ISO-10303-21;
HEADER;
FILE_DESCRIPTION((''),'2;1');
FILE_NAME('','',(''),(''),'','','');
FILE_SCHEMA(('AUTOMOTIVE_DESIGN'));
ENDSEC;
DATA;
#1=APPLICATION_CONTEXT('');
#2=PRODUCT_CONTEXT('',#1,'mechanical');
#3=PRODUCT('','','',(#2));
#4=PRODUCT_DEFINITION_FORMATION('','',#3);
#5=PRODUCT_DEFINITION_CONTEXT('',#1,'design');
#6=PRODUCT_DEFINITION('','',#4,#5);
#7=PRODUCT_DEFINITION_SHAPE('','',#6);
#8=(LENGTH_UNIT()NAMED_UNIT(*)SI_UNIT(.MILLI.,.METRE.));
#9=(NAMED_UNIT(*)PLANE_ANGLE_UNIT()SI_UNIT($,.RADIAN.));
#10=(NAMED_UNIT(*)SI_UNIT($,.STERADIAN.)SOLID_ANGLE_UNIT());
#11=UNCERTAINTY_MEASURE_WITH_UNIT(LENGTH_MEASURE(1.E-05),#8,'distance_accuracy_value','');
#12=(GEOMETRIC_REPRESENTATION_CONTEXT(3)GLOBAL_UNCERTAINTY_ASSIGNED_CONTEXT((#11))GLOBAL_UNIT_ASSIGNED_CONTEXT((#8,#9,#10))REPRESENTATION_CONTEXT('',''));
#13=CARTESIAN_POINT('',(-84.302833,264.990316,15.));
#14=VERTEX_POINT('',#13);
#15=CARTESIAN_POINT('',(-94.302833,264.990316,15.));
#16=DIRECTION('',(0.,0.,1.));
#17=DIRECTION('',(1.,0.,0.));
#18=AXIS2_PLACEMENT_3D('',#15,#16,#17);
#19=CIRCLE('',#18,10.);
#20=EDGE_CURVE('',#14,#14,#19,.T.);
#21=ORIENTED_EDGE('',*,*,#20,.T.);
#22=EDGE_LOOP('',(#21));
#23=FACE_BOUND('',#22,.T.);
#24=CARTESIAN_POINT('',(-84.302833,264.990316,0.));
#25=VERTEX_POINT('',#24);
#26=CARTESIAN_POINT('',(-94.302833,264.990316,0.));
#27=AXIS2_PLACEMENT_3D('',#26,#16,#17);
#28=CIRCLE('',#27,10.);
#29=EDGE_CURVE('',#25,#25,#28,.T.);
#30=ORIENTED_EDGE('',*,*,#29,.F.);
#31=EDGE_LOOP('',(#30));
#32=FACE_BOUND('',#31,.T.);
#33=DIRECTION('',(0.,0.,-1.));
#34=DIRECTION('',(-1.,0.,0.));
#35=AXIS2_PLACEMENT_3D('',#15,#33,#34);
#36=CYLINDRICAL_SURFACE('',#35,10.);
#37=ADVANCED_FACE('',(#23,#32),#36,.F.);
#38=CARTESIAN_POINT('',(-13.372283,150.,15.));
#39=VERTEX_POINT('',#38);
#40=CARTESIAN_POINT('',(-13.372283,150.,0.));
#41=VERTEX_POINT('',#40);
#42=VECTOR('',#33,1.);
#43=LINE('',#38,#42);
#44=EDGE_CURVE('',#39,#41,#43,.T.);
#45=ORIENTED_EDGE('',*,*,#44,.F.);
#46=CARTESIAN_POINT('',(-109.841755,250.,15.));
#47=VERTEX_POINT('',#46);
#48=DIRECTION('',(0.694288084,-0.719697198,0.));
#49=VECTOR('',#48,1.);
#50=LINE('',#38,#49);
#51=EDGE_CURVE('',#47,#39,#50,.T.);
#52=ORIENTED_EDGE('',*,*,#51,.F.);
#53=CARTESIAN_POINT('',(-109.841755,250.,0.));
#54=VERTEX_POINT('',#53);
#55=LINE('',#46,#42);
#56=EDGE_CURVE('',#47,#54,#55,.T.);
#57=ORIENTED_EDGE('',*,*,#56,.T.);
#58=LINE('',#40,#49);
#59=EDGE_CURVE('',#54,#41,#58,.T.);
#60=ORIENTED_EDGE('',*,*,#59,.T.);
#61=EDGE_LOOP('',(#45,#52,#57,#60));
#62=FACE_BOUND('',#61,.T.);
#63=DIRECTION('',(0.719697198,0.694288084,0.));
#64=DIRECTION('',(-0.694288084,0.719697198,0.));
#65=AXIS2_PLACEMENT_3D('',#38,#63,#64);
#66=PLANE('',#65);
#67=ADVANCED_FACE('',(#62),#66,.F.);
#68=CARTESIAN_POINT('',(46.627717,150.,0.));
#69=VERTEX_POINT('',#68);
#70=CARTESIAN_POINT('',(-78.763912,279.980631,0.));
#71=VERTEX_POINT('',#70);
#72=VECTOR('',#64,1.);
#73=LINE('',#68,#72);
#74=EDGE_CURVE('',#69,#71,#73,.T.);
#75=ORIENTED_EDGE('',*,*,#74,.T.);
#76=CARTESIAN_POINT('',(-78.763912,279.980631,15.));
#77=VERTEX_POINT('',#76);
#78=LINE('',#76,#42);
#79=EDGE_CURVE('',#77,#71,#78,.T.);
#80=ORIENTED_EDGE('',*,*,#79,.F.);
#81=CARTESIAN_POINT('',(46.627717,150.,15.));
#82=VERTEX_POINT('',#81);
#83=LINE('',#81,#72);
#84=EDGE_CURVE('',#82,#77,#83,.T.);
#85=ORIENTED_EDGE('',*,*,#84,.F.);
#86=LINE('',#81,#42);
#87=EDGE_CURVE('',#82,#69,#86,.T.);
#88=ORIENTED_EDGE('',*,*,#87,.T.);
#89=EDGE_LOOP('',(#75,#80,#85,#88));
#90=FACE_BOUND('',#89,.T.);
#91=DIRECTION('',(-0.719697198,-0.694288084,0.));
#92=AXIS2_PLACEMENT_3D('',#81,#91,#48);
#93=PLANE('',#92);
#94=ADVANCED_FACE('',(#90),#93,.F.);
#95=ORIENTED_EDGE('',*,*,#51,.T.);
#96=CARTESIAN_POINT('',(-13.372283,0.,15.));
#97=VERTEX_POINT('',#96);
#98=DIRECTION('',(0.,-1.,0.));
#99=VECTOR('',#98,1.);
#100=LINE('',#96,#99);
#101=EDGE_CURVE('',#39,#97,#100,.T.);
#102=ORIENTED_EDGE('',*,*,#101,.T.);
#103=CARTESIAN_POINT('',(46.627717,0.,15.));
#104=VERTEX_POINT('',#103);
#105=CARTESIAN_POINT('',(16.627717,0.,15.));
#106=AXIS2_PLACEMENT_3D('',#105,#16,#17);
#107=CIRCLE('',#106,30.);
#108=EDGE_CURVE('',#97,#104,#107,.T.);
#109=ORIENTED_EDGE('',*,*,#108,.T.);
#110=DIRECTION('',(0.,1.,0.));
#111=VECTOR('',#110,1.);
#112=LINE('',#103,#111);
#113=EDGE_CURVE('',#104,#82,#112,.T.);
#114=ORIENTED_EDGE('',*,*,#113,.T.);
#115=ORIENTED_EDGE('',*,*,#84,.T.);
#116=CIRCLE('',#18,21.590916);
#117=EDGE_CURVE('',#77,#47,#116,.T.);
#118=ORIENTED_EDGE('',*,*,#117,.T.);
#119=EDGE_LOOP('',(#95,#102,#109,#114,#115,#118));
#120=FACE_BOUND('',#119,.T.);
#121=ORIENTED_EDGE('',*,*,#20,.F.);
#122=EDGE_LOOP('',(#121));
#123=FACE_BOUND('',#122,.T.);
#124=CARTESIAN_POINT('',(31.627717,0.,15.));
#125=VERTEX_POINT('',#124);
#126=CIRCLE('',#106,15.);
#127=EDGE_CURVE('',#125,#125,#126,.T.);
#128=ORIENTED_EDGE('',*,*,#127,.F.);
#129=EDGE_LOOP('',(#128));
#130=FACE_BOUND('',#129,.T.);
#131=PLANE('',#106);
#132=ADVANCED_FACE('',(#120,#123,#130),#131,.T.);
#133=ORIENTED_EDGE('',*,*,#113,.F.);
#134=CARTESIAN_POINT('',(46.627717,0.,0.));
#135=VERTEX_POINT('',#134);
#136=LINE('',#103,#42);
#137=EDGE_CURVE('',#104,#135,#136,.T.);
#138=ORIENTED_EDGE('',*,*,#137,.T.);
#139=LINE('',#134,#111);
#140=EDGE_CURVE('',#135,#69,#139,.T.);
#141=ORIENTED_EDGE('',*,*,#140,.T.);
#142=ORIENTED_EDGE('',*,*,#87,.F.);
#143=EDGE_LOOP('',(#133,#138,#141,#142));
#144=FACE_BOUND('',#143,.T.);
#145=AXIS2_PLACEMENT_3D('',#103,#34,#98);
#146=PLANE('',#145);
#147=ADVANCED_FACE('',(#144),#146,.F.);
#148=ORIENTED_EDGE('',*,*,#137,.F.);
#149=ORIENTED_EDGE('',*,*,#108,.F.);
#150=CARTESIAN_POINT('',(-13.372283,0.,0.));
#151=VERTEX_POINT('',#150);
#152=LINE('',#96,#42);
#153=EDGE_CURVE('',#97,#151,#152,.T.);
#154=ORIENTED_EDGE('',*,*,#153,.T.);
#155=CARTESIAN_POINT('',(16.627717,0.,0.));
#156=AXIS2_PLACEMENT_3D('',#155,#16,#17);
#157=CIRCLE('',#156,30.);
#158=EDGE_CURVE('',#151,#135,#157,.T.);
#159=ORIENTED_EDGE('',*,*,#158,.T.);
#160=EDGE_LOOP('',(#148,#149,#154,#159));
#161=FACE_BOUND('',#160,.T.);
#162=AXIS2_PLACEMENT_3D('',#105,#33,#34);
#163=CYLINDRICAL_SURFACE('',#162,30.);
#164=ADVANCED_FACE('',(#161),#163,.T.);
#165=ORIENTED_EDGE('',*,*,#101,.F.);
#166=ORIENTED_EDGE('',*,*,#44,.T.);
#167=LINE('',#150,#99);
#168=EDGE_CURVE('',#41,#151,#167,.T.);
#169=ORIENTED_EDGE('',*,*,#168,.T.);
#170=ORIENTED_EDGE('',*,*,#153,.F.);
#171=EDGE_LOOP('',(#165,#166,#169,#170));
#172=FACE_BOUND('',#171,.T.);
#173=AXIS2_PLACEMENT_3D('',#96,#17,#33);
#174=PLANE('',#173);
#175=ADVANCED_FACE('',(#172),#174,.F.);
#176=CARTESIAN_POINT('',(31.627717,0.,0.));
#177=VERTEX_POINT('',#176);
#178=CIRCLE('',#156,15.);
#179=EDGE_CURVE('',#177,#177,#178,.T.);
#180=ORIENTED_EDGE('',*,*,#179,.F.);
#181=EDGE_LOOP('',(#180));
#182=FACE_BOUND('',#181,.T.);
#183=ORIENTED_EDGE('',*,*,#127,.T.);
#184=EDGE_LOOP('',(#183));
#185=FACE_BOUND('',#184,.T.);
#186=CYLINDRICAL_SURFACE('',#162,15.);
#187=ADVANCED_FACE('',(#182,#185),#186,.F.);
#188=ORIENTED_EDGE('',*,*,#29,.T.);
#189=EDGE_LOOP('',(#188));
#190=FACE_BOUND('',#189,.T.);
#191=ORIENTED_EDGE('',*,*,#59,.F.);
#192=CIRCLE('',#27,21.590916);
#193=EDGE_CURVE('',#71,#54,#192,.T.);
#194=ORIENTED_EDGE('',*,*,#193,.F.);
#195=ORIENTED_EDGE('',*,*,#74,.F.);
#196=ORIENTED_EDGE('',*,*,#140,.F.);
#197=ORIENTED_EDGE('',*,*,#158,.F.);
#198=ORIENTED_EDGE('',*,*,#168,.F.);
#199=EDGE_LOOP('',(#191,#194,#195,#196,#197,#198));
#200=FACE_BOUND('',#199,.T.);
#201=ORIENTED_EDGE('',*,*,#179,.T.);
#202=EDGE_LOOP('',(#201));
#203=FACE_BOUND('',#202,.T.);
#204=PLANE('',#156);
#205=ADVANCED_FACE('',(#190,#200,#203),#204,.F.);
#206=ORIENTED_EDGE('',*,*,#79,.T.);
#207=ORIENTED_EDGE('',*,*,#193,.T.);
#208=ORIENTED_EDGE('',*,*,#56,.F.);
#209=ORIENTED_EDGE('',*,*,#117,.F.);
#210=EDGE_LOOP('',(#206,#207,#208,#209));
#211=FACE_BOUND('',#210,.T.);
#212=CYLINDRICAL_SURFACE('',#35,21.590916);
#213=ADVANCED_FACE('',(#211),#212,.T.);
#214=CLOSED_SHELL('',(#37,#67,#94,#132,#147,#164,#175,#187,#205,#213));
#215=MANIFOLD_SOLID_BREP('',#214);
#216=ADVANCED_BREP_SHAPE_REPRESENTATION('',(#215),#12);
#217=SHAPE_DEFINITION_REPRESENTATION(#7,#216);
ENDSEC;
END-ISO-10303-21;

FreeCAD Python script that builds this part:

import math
import FreeCAD as App
import Part
import Sketcher

doc = App.newDocument("Part")
body = doc.addObject("PartDesign::Body", "Body")

# Sketch on XY plane
sketch1 = body.newObject("Sketcher::SketchObject", "Sketch")
sketch1.AttachmentSupport = (doc.getObject("XY_Plane"), [""])
sketch1.MapMode = "FlatFace"
sketch1.addGeometry([
    Part.LineSegment(App.Vector(-13.372283, 150, 0), App.Vector(-13.372283, 0, 0)),  # 0
    Part.ArcOfCircle(Part.Circle(App.Vector(16.627717, 0, 0), App.Vector(0, 0, 1), 30), math.radians(180), math.radians(360)),  # 1
    Part.LineSegment(App.Vector(46.627717, 0, 0), App.Vector(46.627717, 150, 0)),  # 2
    Part.LineSegment(App.Vector(46.627717, 150, 0), App.Vector(-78.763912, 279.980631, 0)),  # 3
    Part.ArcOfCircle(Part.Circle(App.Vector(-94.302833, 264.990316, 0), App.Vector(0, 0, 1), 21.590916), math.radians(43.970514), math.radians(223.970514)),  # 4
    Part.LineSegment(App.Vector(-109.841755, 250, 0), App.Vector(-13.372283, 150, 0)),  # 5
    Part.Circle(App.Vector(16.627717, 0, 0), App.Vector(0, 0, 1), 15),  # 6
    Part.Circle(App.Vector(-94.302833, 264.990316, 0), App.Vector(0, 0, 1), 10),  # 7
], False)
sketch1.addConstraint([
    Sketcher.Constraint("Tangent", 0, 2, 1, 1),
    Sketcher.Constraint("Tangent", 1, 2, 2, 1),
    Sketcher.Constraint("Coincident", 2, 2, 3, 1),
    Sketcher.Constraint("Tangent", 3, 2, 4, 1),
    Sketcher.Constraint("Tangent", 4, 2, 5, 1),
    Sketcher.Constraint("Coincident", 5, 2, 0, 1),
    Sketcher.Constraint("Vertical", 0),
    Sketcher.Constraint("Vertical", 2),
    Sketcher.Constraint("Coincident", 6, 3, 1, 3),
    Sketcher.Constraint("Coincident", 7, 3, 4, 3),
    Sketcher.Constraint("PointOnObject", 1, 3, -1),
    Sketcher.Constraint("Parallel", 3, 5),
    Sketcher.Constraint("Horizontal", 2, 2, 5, 2),
    Sketcher.Constraint("Diameter", 6, 30.0),
    Sketcher.Constraint("Diameter", 7, 20.0),
    Sketcher.Constraint("Radius", 1, 30.0),
    Sketcher.Constraint("DistanceY", 0, 2, 0, 1, 150.0),
    Sketcher.Constraint("DistanceY", -1, 1, 4, 2, 250.0),
    Sketcher.Constraint("Radius", 4, 21.590916),
    Sketcher.Constraint("DistanceX", 3, 2, -1, 1, 78.763912),
])
pad1 = body.newObject("PartDesign::Pad", "Pad")
pad1.Profile = sketch1
pad1.Length = 15

doc.recompute()
